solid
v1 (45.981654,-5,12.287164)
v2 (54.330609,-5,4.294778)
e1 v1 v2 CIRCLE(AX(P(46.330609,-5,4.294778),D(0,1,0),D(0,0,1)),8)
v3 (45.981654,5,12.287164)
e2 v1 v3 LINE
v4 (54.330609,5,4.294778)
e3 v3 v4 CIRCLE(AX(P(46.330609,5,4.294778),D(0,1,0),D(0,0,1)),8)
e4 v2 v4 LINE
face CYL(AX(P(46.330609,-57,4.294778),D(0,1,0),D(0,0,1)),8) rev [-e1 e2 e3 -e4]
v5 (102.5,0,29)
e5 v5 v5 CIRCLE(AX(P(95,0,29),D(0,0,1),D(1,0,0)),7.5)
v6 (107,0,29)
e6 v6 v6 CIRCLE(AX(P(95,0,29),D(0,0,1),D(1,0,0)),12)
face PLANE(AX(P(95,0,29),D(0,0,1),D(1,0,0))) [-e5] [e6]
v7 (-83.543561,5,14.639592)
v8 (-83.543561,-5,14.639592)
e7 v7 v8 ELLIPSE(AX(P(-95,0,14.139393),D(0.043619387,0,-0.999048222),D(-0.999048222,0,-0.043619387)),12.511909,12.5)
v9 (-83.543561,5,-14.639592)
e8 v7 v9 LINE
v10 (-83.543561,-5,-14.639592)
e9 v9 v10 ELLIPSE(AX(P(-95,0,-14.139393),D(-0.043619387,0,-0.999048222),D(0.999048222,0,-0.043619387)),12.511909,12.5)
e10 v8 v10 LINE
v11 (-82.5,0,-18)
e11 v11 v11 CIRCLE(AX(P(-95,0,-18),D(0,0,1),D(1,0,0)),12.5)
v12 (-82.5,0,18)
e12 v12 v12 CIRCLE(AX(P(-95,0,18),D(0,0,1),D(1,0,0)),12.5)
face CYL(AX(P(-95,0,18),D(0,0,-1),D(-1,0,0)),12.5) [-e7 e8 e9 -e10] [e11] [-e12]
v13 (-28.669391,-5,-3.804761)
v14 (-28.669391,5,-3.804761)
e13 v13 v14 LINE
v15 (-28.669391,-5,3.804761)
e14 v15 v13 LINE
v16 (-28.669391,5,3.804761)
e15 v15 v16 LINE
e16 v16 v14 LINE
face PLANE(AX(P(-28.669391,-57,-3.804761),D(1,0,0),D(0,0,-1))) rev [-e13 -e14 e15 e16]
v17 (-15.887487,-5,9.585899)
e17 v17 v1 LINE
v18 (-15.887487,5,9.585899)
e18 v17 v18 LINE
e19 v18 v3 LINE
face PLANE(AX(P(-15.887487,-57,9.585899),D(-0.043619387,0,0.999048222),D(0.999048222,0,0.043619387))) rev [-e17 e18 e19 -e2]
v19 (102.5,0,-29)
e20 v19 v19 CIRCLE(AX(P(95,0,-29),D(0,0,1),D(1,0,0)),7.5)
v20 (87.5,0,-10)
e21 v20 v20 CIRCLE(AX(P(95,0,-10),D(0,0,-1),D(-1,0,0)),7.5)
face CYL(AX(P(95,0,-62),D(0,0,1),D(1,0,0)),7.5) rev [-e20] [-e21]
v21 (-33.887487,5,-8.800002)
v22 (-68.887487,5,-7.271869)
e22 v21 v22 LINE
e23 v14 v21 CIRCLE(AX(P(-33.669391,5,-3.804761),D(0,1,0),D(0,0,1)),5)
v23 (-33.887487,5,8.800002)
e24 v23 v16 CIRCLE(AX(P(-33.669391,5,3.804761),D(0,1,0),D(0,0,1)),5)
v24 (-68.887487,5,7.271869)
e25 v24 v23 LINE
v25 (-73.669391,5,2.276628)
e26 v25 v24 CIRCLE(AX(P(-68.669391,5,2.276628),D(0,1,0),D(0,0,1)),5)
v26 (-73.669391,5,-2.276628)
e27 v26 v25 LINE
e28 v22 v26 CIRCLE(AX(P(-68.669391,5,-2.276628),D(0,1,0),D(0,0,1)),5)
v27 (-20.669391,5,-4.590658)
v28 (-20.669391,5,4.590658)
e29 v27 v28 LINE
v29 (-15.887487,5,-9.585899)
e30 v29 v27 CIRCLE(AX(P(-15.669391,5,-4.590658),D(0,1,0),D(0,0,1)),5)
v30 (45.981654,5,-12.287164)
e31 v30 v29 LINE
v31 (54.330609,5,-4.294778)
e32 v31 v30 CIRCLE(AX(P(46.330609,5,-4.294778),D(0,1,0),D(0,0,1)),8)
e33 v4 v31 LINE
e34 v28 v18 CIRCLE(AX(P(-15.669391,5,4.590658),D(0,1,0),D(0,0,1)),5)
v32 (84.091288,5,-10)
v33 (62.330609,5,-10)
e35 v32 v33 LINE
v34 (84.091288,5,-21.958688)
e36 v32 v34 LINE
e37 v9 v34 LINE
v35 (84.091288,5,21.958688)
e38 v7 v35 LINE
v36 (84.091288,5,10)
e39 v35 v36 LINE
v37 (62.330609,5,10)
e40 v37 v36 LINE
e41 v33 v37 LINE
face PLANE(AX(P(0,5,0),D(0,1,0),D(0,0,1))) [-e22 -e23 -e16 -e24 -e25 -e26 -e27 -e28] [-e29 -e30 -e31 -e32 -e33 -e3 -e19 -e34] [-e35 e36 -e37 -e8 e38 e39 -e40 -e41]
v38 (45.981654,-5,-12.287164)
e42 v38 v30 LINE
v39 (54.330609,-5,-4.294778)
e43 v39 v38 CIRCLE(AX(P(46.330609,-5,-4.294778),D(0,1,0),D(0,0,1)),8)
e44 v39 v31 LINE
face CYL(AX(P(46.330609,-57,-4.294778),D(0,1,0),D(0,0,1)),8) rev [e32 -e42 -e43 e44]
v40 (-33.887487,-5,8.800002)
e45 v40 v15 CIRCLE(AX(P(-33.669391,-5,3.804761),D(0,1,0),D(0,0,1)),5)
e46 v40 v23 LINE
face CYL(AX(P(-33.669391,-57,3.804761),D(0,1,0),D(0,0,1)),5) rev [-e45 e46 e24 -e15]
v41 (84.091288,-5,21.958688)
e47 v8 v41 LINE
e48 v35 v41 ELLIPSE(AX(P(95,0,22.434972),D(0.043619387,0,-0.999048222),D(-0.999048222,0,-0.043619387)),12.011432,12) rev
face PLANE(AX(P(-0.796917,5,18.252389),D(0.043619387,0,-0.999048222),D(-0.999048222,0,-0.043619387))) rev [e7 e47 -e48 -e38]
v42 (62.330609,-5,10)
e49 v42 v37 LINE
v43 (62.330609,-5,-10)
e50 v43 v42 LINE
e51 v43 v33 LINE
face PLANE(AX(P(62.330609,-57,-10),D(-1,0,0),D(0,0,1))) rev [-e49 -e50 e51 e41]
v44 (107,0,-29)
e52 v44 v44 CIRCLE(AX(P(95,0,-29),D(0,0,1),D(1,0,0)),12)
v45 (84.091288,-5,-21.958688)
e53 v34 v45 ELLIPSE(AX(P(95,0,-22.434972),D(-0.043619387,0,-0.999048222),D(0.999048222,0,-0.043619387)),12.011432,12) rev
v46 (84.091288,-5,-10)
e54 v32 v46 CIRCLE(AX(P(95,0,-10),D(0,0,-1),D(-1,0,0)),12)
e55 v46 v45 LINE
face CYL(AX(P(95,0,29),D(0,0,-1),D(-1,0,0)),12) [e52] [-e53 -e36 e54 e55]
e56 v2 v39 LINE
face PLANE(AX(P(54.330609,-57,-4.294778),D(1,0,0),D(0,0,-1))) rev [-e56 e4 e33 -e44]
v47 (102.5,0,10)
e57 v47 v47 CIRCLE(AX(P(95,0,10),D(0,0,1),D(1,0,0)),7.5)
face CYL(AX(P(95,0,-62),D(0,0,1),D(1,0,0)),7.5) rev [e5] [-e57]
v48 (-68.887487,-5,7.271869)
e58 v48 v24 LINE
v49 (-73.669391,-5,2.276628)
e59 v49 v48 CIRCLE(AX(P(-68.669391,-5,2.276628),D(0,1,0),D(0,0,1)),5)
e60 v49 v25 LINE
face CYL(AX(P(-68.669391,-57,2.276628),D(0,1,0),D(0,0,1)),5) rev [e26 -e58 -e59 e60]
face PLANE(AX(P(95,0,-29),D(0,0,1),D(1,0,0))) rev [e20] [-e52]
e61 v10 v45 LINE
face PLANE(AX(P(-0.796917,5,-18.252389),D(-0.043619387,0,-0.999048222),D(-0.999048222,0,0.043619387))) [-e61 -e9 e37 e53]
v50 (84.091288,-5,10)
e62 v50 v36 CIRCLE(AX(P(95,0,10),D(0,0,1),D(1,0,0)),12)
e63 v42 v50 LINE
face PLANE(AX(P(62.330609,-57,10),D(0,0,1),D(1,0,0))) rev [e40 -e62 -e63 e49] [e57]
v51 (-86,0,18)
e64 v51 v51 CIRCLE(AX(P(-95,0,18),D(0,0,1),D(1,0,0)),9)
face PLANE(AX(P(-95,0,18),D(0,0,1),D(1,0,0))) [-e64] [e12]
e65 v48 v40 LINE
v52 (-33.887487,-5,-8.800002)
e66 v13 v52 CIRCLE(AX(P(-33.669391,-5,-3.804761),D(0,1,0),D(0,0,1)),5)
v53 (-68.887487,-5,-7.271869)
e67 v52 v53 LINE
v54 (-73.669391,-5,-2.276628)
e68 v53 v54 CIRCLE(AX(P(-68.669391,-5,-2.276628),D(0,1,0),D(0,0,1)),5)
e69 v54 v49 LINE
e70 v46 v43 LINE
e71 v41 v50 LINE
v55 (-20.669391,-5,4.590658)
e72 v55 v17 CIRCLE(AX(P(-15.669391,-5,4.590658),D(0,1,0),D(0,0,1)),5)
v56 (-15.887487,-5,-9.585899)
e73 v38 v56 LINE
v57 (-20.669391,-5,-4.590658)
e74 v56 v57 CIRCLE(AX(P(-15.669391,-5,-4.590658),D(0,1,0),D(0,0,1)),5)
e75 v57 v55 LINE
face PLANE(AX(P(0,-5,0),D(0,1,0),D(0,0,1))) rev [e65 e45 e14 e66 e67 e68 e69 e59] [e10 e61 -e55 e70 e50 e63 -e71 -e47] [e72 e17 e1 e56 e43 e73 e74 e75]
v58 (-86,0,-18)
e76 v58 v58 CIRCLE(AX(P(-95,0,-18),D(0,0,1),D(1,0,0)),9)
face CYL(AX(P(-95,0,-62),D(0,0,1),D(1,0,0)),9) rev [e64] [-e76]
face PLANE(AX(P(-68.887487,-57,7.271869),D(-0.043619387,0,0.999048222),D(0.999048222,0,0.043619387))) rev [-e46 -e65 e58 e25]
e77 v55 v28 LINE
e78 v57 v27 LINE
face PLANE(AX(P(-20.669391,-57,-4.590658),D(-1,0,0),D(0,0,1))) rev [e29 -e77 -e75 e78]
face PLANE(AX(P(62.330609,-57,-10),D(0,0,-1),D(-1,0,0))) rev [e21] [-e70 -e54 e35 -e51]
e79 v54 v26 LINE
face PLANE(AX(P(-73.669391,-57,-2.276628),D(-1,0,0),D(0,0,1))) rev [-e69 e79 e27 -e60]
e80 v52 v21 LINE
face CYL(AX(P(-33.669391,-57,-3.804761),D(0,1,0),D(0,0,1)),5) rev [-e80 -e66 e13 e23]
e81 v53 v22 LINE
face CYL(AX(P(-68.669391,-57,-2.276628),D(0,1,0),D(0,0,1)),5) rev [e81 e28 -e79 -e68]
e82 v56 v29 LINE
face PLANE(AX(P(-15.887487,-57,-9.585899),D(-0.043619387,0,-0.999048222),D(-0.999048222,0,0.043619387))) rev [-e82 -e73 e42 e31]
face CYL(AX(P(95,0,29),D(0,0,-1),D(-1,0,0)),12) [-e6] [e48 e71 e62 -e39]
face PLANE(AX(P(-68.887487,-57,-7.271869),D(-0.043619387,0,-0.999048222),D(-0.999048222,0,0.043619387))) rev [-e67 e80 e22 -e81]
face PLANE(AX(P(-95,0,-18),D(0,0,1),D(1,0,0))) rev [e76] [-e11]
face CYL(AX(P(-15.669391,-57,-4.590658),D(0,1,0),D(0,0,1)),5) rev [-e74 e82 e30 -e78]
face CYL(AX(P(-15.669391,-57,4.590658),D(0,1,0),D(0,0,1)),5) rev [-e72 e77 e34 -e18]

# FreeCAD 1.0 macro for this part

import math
import FreeCAD as App
import Part
import Sketcher

V = App.Vector
Q = App.Units.Quantity


def add_polygon(sketch, points):
    """Adds a closed chain of lines whose ends are joined by coincident constraints."""
    first, n = sketch.GeometryCount, len(points)
    for a, b in zip(points, points[1:] + points[:1]):
        sketch.addGeometry(Part.LineSegment(App.Vector(*a, 0), App.Vector(*b, 0)), False)
    for i in range(n):
        sketch.addConstraint(Sketcher.Constraint("Coincident", first + i, 2, first + (i + 1) % n, 1))

doc = App.newDocument("Part")
body = doc.addObject("PartDesign::Body", "Body")

# Sketch on XY plane
sketch1 = body.newObject("Sketcher::SketchObject", "Sketch")
sketch1.AttachmentSupport = (doc.getObject("XY_Plane"), [""])
sketch1.MapMode = "FlatFace"
sketch1.addGeometry(Part.Circle(V(-95, 0, 0), V(0, 0, 1), 12), False)
sketch1.addConstraint([
    Sketcher.Constraint("PointOnObject", 0, 3, -1),
    Sketcher.Constraint("Diameter", 0, 25.0),
    Sketcher.Constraint("DistanceX", 0, 3, -1, 1, 95.0),
])
pad1 = body.newObject("PartDesign::Pad", "Pad")
pad1.Profile = sketch1
pad1.Length = 36
pad1.Midplane = True
body2 = doc.addObject("PartDesign::Body", "Body001")

# Sketch on XY plane
sketch2 = body2.newObject("Sketcher::SketchObject", "Sketch001")
sketch2.AttachmentSupport = (doc.getObject("XY_Plane001"), [""])
sketch2.MapMode = "FlatFace"
sketch2.addGeometry(Part.Circle(V(95, 0, 0), V(0, 0, 1), 12), False)
sketch2.addConstraint([
    Sketcher.Constraint("PointOnObject", 0, 3, -1),
    Sketcher.Constraint("Diameter", 0, 24.0),
    Sketcher.Constraint("DistanceX", -1, 1, 0, 3, 95.0),
])
pad2 = body2.newObject("PartDesign::Pad", "Pad001")
pad2.Profile = sketch2
pad2.Length = 58
pad2.Midplane = True
body.AllowCompound = True
doc.recompute()

boolean = body.newObject("PartDesign::Boolean", "Boolean")
boolean.Type = "Fuse"
boolean.addObjects([body2])

# Sketch on XZ plane
sketch3 = body.newObject("Sketcher::SketchObject", "Sketch002")
sketch3.AttachmentSupport = (doc.getObject("XZ_Plane"), [""])
sketch3.MapMode = "FlatFace"
add_polygon(sketch3, [(95, 22), (95, -22), (-95, -14), (-95, 14)])  # lines 0-3
sketch3.addConstraint([
    Sketcher.Constraint("Vertical", 0),
    Sketcher.Constraint("Vertical", 2),
    Sketcher.Constraint("Equal", 1, 3),
    Sketcher.Constraint("DistanceX", -1, 1, 0, 2, 95.0),
    Sketcher.Constraint("DistanceX", 1, 2, -1, 1, 95.0),
    Sketcher.Constraint("Angle", 1, Q("177.5 deg")),
    Sketcher.Constraint("DistanceY", 0, 2, 0, 1, 44.869945),
    Sketcher.Constraint("DistanceY", 0, 2, -1, 1, 22.434972),
])
pad3 = body.newObject("PartDesign::Pad", "Pad002")
pad3.Profile = sketch3
pad3.Length = 10
pad3.Midplane = True

# Sketch on XZ plane
sketch4 = body.newObject("Sketcher::SketchObject", "Sketch003")
sketch4.AttachmentSupport = (doc.getObject("XZ_Plane"), [""])
sketch4.MapMode = "FlatFace"
sketch4.AttachmentOffset = App.Placement(V(0, 0, -5), App.Rotation())
add_polygon(sketch4, [(62, -10), (62, 10), (125, 10), (125, -10)])  # lines 0-3
sketch4.addConstraint([
    Sketcher.Constraint("Vertical", 0),
    Sketcher.Constraint("Horizontal", 1),
    Sketcher.Constraint("Vertical", 2),
    Sketcher.Constraint("Horizontal", 3),
    Sketcher.Constraint("DistanceY", 0, 1, 0, 2, 20.0),
    Sketcher.Constraint("DistanceY", -1, 1, 0, 2, 10.0),
    Sketcher.Constraint("DistanceX", 1, 1, 1, 2, 62.580609),
    Sketcher.Constraint("DistanceX", -1, 1, 0, 2, 62.330609),
])
pocket1 = body.newObject("PartDesign::Pocket", "Pocket")
pocket1.Profile = sketch4
pocket1.Length = 124
pocket1.Midplane = True

# Sketch on XZ plane
sketch5 = body.newObject("Sketcher::SketchObject", "Sketch004")
sketch5.AttachmentSupport = (doc.getObject("XZ_Plane"), [""])
sketch5.MapMode = "FlatFace"
sketch5.AttachmentOffset = App.Placement(V(0, 0, -5), App.Rotation())
sketch5.addGeometry([
    Part.LineSegment(V(-68.9, 7.3, 0), V(-33.9, 8.8, 0)),  # 0
    Part.ArcOfCircle(Part.Circle(V(-33.7, 3.8, 0), V(0, 0, 1), 5), math.radians(0), math.radians(93)),  # 1
    Part.LineSegment(V(-28.7, 3.8, 0), V(-28.7, -3.8, 0)),  # 2
    Part.ArcOfCircle(Part.Circle(V(-33.7, -3.8, 0), V(0, 0, 1), 5), math.radians(-93), math.radians(0)),  # 3
    Part.LineSegment(V(-33.9, -8.8, 0), V(-68.9, -7.3, 0)),  # 4
    Part.ArcOfCircle(Part.Circle(V(-68.7, -2.3, 0), V(0, 0, 1), 5), math.radians(180), math.radians(268)),  # 5
    Part.LineSegment(V(-73.7, -2.3, 0), V(-73.7, 2.3, 0)),  # 6
    Part.ArcOfCircle(Part.Circle(V(-68.7, 2.3, 0), V(0, 0, 1), 5), math.radians(92), math.radians(180)),  # 7
    Part.LineSegment(V(-20.7, -4.6, 0), V(-20.7, 4.6, 0)),  # 8
    Part.ArcOfCircle(Part.Circle(V(-15.7, 4.6, 0), V(0, 0, 1), 5), math.radians(92), math.radians(180)),  # 9
    Part.LineSegment(V(-15.9, 9.6, 0), V(46, 12.3, 0)),  # 10
    Part.ArcOfCircle(Part.Circle(V(46.3, 4.3, 0), V(0, 0, 1), 8), math.radians(0), math.radians(93)),  # 11
    Part.LineSegment(V(54.3, 4.3, 0), V(54.3, -4.3, 0)),  # 12
    Part.ArcOfCircle(Part.Circle(V(46.3, -4.3, 0), V(0, 0, 1), 8), math.radians(-93), math.radians(0)),  # 13
    Part.LineSegment(V(46, -12.3, 0), V(-15.9, -9.6, 0)),  # 14
    Part.ArcOfCircle(Part.Circle(V(-15.7, -4.6, 0), V(0, 0, 1), 5), math.radians(180), math.radians(268)),  # 15
], False)
sketch5.addConstraint([
    Sketcher.Constraint("Tangent", 0, 2, 1, 2),
    Sketcher.Constraint("Tangent", 1, 1, 2, 1),
    Sketcher.Constraint("Tangent", 2, 2, 3, 2),
    Sketcher.Constraint("Tangent", 3, 1, 4, 1),
    Sketcher.Constraint("Tangent", 4, 2, 5, 2),
    Sketcher.Constraint("Tangent", 5, 1, 6, 1),
    Sketcher.Constraint("Tangent", 6, 2, 7, 2),
    Sketcher.Constraint("Tangent", 7, 1, 0, 1),
    Sketcher.Constraint("Tangent", 8, 2, 9, 2),
    Sketcher.Constraint("Tangent", 9, 1, 10, 1),
    Sketcher.Constraint("Tangent", 10, 2, 11, 2),
    Sketcher.Constraint("Tangent", 11, 1, 12, 1),
    Sketcher.Constraint("Tangent", 12, 2, 13, 2),
    Sketcher.Constraint("Tangent", 13, 1, 14, 1),
    Sketcher.Constraint("Tangent", 14, 2, 15, 2),
    Sketcher.Constraint("Tangent", 15, 1, 8, 1),
    Sketcher.Constraint("Vertical", 2),
    Sketcher.Constraint("Vertical", 6),
    Sketcher.Constraint("Vertical", 8),
    Sketcher.Constraint("Vertical", 12),
    Sketcher.Constraint("Equal", 1, 3),
    Sketcher.Constraint("Equal", 3, 5),
    Sketcher.Constraint("Equal", 5, 7),
    Sketcher.Constraint("Equal", 7, 9),
    Sketcher.Constraint("Equal", 11, 13),
    Sketcher.Constraint("Equal", 9, 15),
    Sketcher.Constraint("Symmetric", 0, 2, 3, 1, -1),
    Sketcher.Constraint("Symmetric", 10, 2, 13, 1, -1),
    Sketcher.Constraint("Parallel", 0, 10),
    Sketcher.Constraint("Radius", 1, 5.0),
    Sketcher.Constraint("Radius", 11, 8.0),
    Sketcher.Constraint("Angle", 0, Q("2.5 deg")),
    Sketcher.Constraint("DistanceX", 5, 3, 3, 3, 35.0),
    Sketcher.Constraint("DistanceX", 1, 3, 9, 3, 18.0),
    Sketcher.Constraint("DistanceX", 9, 3, 11, 3, 62.0),
    Sketcher.Constraint("DistanceY", -1, 1, 0, 2, 8.800002),
    Sketcher.Constraint("DistanceY", -1, 1, 9, 1, 9.585899),
    Sketcher.Constraint("DistanceX", 1, 3, -1, 1, 33.669391),
])
pocket2 = body.newObject("PartDesign::Pocket", "Pocket001")
pocket2.Profile = sketch5
pocket2.Length = 124
pocket2.Midplane = True

# Sketch on XY plane
sketch6 = body.newObject("Sketcher::SketchObject", "Sketch005")
sketch6.AttachmentSupport = (doc.getObject("XY_Plane"), [""])
sketch6.MapMode = "FlatFace"
sketch6.addGeometry([
    Part.Circle(V(-95, 0, 0), V(0, 0, 1), 9),
    Part.Circle(V(95, 0, 0), V(0, 0, 1), 8),
], False)
sketch6.addConstraint([
    Sketcher.Constraint("Symmetric", 0, 3, 1, 3, -1, 1),
    Sketcher.Constraint("PointOnObject", 0, 3, -1),
    Sketcher.Constraint("Diameter", 0, 18.0),
    Sketcher.Constraint("Diameter", 1, 15.0),
    Sketcher.Constraint("DistanceX", 0, 3, -1, 1, 95.0),
])
pocket3 = body.newObject("PartDesign::Pocket", "Pocket002")
pocket3.Profile = sketch6
pocket3.Length = 124
pocket3.Midplane = True

doc.recompute()
